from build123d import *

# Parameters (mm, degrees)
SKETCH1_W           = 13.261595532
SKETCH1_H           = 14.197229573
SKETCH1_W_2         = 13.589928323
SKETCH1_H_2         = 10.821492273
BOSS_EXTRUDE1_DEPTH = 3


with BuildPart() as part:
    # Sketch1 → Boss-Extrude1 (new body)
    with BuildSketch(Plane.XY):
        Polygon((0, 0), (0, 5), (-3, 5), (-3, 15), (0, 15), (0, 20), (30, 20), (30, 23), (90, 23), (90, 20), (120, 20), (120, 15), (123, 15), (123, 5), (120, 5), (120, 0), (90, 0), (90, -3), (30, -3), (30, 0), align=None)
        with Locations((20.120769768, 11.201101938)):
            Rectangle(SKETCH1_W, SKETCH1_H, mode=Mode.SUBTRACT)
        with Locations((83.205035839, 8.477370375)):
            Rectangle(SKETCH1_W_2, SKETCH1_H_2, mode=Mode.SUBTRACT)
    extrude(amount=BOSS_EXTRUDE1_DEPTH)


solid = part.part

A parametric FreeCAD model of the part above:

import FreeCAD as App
import Part
import Sketcher
from FreeCAD import Vector
Q = App.Units.Quantity


def add_polygon(sketch, points):
    """Adds a closed chain of lines whose ends are joined by coincident constraints."""
    first, n = sketch.GeometryCount, len(points)
    for a, b in zip(points, points[1:] + points[:1]):
        sketch.addGeometry(Part.LineSegment(App.Vector(*a, 0), App.Vector(*b, 0)), False)
    for i in range(n):
        sketch.addConstraint(Sketcher.Constraint("Coincident", first + i, 2, first + (i + 1) % n, 1))

doc = App.newDocument("Part")
params = doc.addObject("Spreadsheet::Sheet", "Params")
for row, (alias, value) in enumerate([
    ("sketch1_width", "30 mm"),
    ("sketch1_width2", "60 mm"),
    ("sketch1_width3", "3 mm"),
    ("sketch1_height", "5 mm"),
    ("sketch1_height2", "10 mm"),
    ("pad1_length", "3 mm"),
], start=1):
    params.set(f"A{row}", alias)
    params.set(f"B{row}", "=" + value)
    params.setAlias(f"B{row}", alias)

body = doc.addObject("PartDesign::Body", "Body")

sketch1 = body.newObject("Sketcher::SketchObject", "Sketch")
sketch1.AttachmentSupport = (doc.getObject("XY_Plane"), [""])
sketch1.MapMode = "FlatFace"
add_polygon(sketch1, [(0, 5), (0, 0), (30, 0), (30, -3), (90, -3), (90, 0), (120, 0), (120, 5), (123, 5), (123, 15), (120, 15), (120, 20), (90, 20), (90, 23), (30, 23), (30, 20), (0, 20), (0, 15), (-3, 15), (-3, 5)])
add_polygon(sketch1, [(76.4, 3.1), (76.4, 13.9), (90, 13.9), (90, 3.1)])
add_polygon(sketch1, [(13.5, 4.1), (13.5, 18.3), (26.8, 18.3), (26.8, 4.1)])
sketch1.addConstraint(Sketcher.Constraint("Vertical", 0))
sketch1.addConstraint(Sketcher.Constraint("Horizontal", 1))
sketch1.addConstraint(Sketcher.Constraint("Vertical", 2))
sketch1.addConstraint(Sketcher.Constraint("Horizontal", 3))
sketch1.addConstraint(Sketcher.Constraint("Vertical", 4))
sketch1.addConstraint(Sketcher.Constraint("Horizontal", 5))
sketch1.addConstraint(Sketcher.Constraint("Vertical", 6))
sketch1.addConstraint(Sketcher.Constraint("Horizontal", 7))
sketch1.addConstraint(Sketcher.Constraint("Vertical", 8))
sketch1.addConstraint(Sketcher.Constraint("Horizontal", 9))
sketch1.addConstraint(Sketcher.Constraint("Vertical", 10))
sketch1.addConstraint(Sketcher.Constraint("Horizontal", 11))
sketch1.addConstraint(Sketcher.Constraint("Vertical", 12))
sketch1.addConstraint(Sketcher.Constraint("Horizontal", 13))
sketch1.addConstraint(Sketcher.Constraint("Vertical", 14))
sketch1.addConstraint(Sketcher.Constraint("Horizontal", 15))
sketch1.addConstraint(Sketcher.Constraint("Vertical", 16))
sketch1.addConstraint(Sketcher.Constraint("Horizontal", 17))
sketch1.addConstraint(Sketcher.Constraint("Vertical", 18))
sketch1.addConstraint(Sketcher.Constraint("Horizontal", 19))
sketch1.addConstraint(Sketcher.Constraint("Vertical", 20))
sketch1.addConstraint(Sketcher.Constraint("Horizontal", 21))
sketch1.addConstraint(Sketcher.Constraint("Vertical", 22))
sketch1.addConstraint(Sketcher.Constraint("Horizontal", 23))
sketch1.addConstraint(Sketcher.Constraint("Vertical", 24))
sketch1.addConstraint(Sketcher.Constraint("Horizontal", 25))
sketch1.addConstraint(Sketcher.Constraint("Vertical", 26))
sketch1.addConstraint(Sketcher.Constraint("Horizontal", 27))
sketch1.addConstraint(Sketcher.Constraint("Coincident", 0, 2, -1, 1))
sketch1.addConstraint(Sketcher.Constraint("PointOnObject", 4, 2, -1))
sketch1.addConstraint(Sketcher.Constraint("PointOnObject", 15, 2, -2))
sketch1.addConstraint(Sketcher.Constraint("Horizontal", 11, 2, 14, 2))
sketch1.addConstraint(Sketcher.Constraint("Horizontal", 9, 2, 16, 2))
sketch1.addConstraint(Sketcher.Constraint("Horizontal", 7, 2, 18, 2))
sketch1.addConstraint(Sketcher.Constraint("Vertical", 6, 2, 9, 2))
sketch1.addConstraint(Sketcher.Constraint("Vertical", 4, 2, 11, 2))
sketch1.addConstraint(Sketcher.Constraint("Vertical", 2, 2, 13, 2))
sketch1.addConstraint(Sketcher.Constraint("Vertical", 12, 2, 21, 2))
sketch1.addConstraint(Sketcher.Constraint("Equal", 1, 5))
sketch1.addConstraint(Sketcher.Constraint("Equal", 9, 17))
sketch1.addConstraint(Sketcher.Constraint("Equal", 19, 2))
sketch1.addConstraint(Sketcher.Constraint("Equal", 6, 10))
sketch1.addConstraint(Sketcher.Constraint("Equal", 4, 12))
sketch1.addConstraint(Sketcher.Constraint("DistanceX", 1, 1, 1, 2, Q("30 mm")))
sketch1.addConstraint(Sketcher.Constraint("DistanceX", 3, 1, 3, 2, Q("60 mm")))
sketch1.addConstraint(Sketcher.Constraint("DistanceX", 7, 1, 7, 2, Q("3 mm")))
sketch1.addConstraint(Sketcher.Constraint("DistanceY", 0, 2, 0, 1, Q("5 mm")))
sketch1.addConstraint(Sketcher.Constraint("DistanceY", 8, 1, 8, 2, Q("10 mm")))
sketch1.addConstraint(Sketcher.Constraint("DistanceX", 21, 1, 21, 2, Q("13.589928 mm")))
sketch1.addConstraint(Sketcher.Constraint("DistanceY", 24, 1, 24, 2, Q("14.19723 mm")))
sketch1.addConstraint(Sketcher.Constraint("DistanceX", 25, 1, 25, 2, Q("13.261596 mm")))
sketch1.addConstraint(Sketcher.Constraint("DistanceY", 20, 1, 20, 2, Q("10.821492 mm")))
sketch1.addConstraint(Sketcher.Constraint("DistanceY", -1, 1, 20, 2, Q("13.888117 mm")))
sketch1.addConstraint(Sketcher.Constraint("DistanceX", -1, 1, 24, 2, Q("13.489972 mm")))
sketch1.addConstraint(Sketcher.Constraint("DistanceY", -1, 1, 24, 2, Q("18.299717 mm")))
sketch1.setExpression("Constraints[71]", "Params.sketch1_width")
sketch1.setExpression("Constraints[72]", "Params.sketch1_width2")
sketch1.setExpression("Constraints[73]", "Params.sketch1_width3")
sketch1.setExpression("Constraints[74]", "Params.sketch1_height")
sketch1.setExpression("Constraints[75]", "Params.sketch1_height2")
pad1 = body.newObject("PartDesign::Pad", "Pad")
pad1.Profile = sketch1
pad1.setExpression("Length", "Params.pad1_length")

doc.recompute()
